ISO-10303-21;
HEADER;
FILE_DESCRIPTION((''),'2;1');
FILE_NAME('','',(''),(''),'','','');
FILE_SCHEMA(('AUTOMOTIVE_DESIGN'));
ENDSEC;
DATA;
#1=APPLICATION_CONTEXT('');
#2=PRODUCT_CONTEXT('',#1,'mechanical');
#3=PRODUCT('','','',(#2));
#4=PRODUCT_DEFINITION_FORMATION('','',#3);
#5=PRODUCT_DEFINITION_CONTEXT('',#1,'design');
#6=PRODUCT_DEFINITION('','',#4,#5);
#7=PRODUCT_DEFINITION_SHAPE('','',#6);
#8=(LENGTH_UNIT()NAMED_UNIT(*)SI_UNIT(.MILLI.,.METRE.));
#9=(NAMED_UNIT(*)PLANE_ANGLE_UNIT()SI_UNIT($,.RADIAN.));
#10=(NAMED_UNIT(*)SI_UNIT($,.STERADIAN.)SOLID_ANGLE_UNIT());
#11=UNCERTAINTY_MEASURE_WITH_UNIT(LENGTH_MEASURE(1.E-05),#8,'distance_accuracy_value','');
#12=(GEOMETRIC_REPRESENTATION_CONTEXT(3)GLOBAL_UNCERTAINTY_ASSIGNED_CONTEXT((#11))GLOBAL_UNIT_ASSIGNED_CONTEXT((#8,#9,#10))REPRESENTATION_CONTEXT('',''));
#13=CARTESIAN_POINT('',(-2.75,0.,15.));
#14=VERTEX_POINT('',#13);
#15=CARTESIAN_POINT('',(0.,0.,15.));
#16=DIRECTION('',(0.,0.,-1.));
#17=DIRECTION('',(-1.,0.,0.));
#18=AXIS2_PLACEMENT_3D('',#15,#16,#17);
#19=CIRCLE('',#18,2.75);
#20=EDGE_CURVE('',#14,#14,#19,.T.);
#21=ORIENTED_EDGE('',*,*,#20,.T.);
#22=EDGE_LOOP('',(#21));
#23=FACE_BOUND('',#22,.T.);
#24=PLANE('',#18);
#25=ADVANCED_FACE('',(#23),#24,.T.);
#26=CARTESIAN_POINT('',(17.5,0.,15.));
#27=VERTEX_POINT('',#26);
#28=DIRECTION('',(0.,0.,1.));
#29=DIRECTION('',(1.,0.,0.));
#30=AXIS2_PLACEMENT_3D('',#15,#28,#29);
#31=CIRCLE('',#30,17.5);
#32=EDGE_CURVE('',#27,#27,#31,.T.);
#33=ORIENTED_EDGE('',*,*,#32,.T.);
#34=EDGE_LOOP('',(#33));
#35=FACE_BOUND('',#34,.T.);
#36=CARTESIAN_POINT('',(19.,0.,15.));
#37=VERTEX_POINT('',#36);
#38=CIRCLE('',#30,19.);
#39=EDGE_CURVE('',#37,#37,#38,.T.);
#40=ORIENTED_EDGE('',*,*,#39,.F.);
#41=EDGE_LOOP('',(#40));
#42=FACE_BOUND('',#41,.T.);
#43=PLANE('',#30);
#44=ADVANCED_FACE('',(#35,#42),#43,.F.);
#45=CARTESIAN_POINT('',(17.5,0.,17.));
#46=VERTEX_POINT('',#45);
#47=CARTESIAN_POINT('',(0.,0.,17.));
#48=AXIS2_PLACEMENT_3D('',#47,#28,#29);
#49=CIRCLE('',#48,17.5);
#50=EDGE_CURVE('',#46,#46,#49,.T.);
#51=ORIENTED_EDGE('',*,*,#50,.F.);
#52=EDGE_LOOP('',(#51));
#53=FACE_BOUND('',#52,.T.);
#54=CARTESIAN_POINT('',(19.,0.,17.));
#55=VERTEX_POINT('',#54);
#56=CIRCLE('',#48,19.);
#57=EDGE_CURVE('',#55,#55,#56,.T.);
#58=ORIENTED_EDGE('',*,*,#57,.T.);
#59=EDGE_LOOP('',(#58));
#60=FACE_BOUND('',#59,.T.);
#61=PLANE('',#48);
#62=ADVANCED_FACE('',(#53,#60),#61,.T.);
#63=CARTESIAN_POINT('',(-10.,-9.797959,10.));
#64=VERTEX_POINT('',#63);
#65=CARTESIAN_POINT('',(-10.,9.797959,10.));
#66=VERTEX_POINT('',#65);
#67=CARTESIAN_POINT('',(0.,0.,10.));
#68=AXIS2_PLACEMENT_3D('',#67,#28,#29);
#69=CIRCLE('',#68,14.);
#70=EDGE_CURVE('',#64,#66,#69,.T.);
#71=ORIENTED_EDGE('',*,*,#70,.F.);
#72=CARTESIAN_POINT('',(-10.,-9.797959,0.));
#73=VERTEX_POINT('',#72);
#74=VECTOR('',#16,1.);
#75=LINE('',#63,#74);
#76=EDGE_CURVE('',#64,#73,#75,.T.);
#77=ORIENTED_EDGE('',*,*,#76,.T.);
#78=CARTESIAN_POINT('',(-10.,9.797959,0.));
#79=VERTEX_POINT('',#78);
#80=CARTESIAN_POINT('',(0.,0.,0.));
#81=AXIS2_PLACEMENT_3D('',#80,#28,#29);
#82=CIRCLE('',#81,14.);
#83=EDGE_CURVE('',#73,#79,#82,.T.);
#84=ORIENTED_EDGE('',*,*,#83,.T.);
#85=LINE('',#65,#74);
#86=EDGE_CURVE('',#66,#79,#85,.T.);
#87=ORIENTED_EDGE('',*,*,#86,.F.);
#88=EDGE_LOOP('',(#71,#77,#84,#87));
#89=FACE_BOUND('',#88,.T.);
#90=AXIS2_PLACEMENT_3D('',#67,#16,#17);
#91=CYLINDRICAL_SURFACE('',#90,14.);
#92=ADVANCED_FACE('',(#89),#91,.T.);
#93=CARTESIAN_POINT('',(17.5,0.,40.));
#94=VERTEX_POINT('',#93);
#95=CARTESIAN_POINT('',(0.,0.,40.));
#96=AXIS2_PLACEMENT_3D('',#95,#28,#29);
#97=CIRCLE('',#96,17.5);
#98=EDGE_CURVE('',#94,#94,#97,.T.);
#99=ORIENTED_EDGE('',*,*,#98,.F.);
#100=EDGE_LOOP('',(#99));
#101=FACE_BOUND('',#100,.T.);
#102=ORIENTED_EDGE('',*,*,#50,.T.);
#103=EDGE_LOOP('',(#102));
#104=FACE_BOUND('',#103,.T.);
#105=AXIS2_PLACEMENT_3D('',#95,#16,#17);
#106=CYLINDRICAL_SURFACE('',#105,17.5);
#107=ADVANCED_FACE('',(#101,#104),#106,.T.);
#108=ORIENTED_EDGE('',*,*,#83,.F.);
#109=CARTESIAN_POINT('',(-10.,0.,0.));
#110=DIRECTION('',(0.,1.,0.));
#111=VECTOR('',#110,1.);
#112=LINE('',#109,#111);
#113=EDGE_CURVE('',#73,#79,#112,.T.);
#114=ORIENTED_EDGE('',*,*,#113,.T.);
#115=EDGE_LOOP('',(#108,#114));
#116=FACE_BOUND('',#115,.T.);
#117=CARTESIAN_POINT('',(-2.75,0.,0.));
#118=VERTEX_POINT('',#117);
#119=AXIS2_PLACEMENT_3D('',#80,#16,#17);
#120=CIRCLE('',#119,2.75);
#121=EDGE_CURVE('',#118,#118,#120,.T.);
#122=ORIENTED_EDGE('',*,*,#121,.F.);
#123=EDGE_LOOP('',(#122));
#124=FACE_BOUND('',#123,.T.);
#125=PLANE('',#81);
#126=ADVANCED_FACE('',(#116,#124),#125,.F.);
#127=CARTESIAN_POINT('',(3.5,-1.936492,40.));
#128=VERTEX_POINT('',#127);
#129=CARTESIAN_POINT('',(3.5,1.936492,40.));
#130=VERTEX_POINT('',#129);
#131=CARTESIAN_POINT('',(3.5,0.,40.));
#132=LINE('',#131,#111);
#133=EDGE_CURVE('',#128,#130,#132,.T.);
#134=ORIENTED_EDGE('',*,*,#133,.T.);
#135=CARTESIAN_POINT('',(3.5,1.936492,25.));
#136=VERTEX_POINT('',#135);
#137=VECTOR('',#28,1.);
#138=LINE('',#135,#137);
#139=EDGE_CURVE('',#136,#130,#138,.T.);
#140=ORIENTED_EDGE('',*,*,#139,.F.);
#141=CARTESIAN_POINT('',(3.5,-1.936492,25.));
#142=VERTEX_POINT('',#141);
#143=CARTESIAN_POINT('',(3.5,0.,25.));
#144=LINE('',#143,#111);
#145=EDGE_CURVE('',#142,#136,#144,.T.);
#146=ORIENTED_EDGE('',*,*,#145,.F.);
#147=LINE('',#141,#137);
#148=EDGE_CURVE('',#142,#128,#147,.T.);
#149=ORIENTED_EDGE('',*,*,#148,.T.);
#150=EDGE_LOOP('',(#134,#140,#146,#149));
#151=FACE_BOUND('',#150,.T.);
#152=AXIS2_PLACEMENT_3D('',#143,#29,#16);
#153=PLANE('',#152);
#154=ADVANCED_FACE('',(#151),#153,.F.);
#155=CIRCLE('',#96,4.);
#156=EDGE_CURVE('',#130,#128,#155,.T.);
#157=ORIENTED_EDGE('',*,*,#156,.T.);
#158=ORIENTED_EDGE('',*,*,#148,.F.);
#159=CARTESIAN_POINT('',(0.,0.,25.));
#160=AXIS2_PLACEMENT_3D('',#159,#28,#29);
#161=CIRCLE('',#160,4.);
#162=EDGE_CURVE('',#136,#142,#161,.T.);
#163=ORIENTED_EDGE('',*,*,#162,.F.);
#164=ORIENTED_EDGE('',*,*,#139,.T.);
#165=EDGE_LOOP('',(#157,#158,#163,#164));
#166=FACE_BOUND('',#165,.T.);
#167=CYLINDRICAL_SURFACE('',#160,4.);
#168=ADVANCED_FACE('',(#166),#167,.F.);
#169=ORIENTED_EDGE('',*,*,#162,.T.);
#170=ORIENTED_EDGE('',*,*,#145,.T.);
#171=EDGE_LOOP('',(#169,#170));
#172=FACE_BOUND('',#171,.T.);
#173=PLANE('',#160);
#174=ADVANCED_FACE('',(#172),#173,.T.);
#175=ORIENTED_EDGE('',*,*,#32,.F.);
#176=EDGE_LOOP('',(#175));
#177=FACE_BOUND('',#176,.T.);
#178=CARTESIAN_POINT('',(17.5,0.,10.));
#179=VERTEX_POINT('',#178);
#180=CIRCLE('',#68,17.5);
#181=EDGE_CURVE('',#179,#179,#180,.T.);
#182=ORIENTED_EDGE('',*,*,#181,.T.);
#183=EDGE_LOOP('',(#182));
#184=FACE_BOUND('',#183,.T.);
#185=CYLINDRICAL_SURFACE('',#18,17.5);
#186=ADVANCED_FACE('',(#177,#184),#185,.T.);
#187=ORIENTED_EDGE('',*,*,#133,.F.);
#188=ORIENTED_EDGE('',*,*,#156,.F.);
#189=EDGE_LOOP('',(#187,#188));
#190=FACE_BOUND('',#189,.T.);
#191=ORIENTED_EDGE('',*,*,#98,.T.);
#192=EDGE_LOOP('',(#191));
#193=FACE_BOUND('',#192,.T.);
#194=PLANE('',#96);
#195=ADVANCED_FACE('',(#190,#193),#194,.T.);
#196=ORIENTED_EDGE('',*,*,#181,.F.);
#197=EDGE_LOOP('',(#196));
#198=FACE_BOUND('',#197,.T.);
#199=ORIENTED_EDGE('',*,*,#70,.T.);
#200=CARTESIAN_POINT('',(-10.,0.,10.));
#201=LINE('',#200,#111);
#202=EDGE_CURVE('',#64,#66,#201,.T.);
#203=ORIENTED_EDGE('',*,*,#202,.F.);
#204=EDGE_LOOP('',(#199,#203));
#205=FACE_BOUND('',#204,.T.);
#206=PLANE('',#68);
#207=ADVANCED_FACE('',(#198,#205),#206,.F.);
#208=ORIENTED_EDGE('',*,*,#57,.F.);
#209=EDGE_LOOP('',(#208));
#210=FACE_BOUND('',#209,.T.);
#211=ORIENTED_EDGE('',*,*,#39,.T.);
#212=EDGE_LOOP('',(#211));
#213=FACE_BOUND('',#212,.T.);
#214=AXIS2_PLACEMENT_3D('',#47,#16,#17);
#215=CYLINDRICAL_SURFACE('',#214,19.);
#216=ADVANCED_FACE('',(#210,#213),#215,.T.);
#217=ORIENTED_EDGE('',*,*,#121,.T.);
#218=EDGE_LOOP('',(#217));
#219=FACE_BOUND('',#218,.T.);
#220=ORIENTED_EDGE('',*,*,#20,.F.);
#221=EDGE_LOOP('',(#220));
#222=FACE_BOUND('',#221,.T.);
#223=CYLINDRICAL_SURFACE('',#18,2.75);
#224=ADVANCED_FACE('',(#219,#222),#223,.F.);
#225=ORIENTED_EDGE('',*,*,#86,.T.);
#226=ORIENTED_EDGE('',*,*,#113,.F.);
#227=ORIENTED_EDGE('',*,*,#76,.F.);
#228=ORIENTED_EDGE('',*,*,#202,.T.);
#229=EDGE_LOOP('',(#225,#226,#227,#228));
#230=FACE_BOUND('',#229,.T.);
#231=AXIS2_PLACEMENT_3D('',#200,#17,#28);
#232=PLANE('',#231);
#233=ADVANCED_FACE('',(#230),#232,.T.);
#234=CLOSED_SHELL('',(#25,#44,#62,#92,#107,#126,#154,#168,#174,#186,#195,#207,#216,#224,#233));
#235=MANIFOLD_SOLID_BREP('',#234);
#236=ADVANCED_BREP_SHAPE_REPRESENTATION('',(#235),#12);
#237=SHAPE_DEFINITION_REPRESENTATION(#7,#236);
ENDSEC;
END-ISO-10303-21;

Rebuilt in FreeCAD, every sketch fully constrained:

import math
import FreeCAD as App
import Part
import Sketcher

V = App.Vector

doc = App.newDocument("Part")
params = doc.addObject("Spreadsheet::Sheet", "Params")
for row, (alias, value) in enumerate([
    ("sketch1_diameter", "28 mm"),
    ("pad1_length", "10 mm"),
    ("sketch2_diameter", "35 mm"),
    ("pad2_length", "5 mm"),
    ("sketch3_diameter", "38 mm"),
    ("pad3_length", "2 mm"),
    ("sketch4_diameter", "35 mm"),
    ("pad4_length", "23 mm"),
    ("sketch5_radius", "14 mm"),
    ("pocket1_length", "10 mm"),
    ("sketch6_diameter", "5.5 mm"),
    ("pocket2_length", "15 mm"),
    ("sketch7_radius", "4 mm"),
    ("pocket3_length", "15 mm"),
], start=1):
    params.set(f"A{row}", alias)
    params.set(f"B{row}", "=" + value)
    params.setAlias(f"B{row}", alias)

body = doc.addObject("PartDesign::Body", "Body")

sketch1 = body.newObject("Sketcher::SketchObject", "Sketch")
sketch1.AttachmentSupport = (doc.getObject("XY_Plane"), [""])
sketch1.MapMode = "FlatFace"
sketch1.addGeometry(Part.Circle(V(0, 0, 0), V(0, 0, 1), 14), False)
sketch1.addConstraint([
    Sketcher.Constraint("Coincident", 0, 3, -1, 1),
    Sketcher.Constraint("Diameter", 0, 28.0),
])
sketch1.setExpression("Constraints[1]", "Params.sketch1_diameter")
pad1 = body.newObject("PartDesign::Pad", "Pad")
pad1.Profile = sketch1
pad1.setExpression("Length", "Params.pad1_length")

sketch2 = body.newObject("Sketcher::SketchObject", "Sketch001")
sketch2.AttachmentSupport = (doc.getObject("XY_Plane"), [""])
sketch2.MapMode = "FlatFace"
sketch2.AttachmentOffset = App.Placement(V(0, 0, 10), App.Rotation())
sketch2.addGeometry(Part.Circle(V(0, 0, 0), V(0, 0, 1), 17.5), False)
sketch2.addConstraint([
    Sketcher.Constraint("Coincident", 0, 3, -1, 1),
    Sketcher.Constraint("Diameter", 0, 35.0),
])
sketch2.setExpression("Constraints[1]", "Params.sketch2_diameter")
pad2 = body.newObject("PartDesign::Pad", "Pad001")
pad2.Profile = sketch2
pad2.setExpression("Length", "Params.pad2_length")

sketch3 = body.newObject("Sketcher::SketchObject", "Sketch002")
sketch3.AttachmentSupport = (doc.getObject("XY_Plane"), [""])
sketch3.MapMode = "FlatFace"
sketch3.AttachmentOffset = App.Placement(V(0, 0, 15), App.Rotation())
sketch3.addGeometry(Part.Circle(V(0, 0, 0), V(0, 0, 1), 19), False)
sketch3.addConstraint([
    Sketcher.Constraint("Coincident", 0, 3, -1, 1),
    Sketcher.Constraint("Diameter", 0, 38.0),
])
sketch3.setExpression("Constraints[1]", "Params.sketch3_diameter")
pad3 = body.newObject("PartDesign::Pad", "Pad002")
pad3.Profile = sketch3
pad3.setExpression("Length", "Params.pad3_length")

sketch4 = body.newObject("Sketcher::SketchObject", "Sketch003")
sketch4.AttachmentSupport = (doc.getObject("XY_Plane"), [""])
sketch4.MapMode = "FlatFace"
sketch4.AttachmentOffset = App.Placement(V(0, 0, 17), App.Rotation())
sketch4.addGeometry(Part.Circle(V(0, 0, 0), V(0, 0, 1), 17.5), False)
sketch4.addConstraint([
    Sketcher.Constraint("Coincident", 0, 3, -1, 1),
    Sketcher.Constraint("Diameter", 0, 35.0),
])
sketch4.setExpression("Constraints[1]", "Params.sketch4_diameter")
pad4 = body.newObject("PartDesign::Pad", "Pad003")
pad4.Profile = sketch4
pad4.setExpression("Length", "Params.pad4_length")

sketch5 = body.newObject("Sketcher::SketchObject", "Sketch004")
sketch5.AttachmentSupport = (doc.getObject("XY_Plane"), [""])
sketch5.MapMode = "FlatFace"
sketch5.addGeometry([
    Part.ArcOfCircle(Part.Circle(V(0, 0, 0), V(0, 0, 1), 14), math.radians(135.584691), math.radians(224.415309)),
    Part.LineSegment(V(-10, 9.797959, 0), V(-10, -9.797959, 0)),
], False)
sketch5.addConstraint([
    Sketcher.Constraint("Coincident", 0, 1, 1, 1),
    Sketcher.Constraint("Coincident", 1, 2, 0, 2),
    Sketcher.Constraint("Vertical", 1),
    Sketcher.Constraint("Coincident", 0, 3, -1, 1),
    Sketcher.Constraint("Radius", 0, 14.0),
    Sketcher.Constraint("DistanceX", 0, 1, -1, 1, 10.0),
])
sketch5.setExpression("Constraints[4]", "Params.sketch5_radius")
pocket1 = body.newObject("PartDesign::Pocket", "Pocket")
pocket1.Profile = sketch5
pocket1.setExpression("Length", "Params.pocket1_length")
pocket1.Reversed = True

sketch6 = body.newObject("Sketcher::SketchObject", "Sketch005")
sketch6.AttachmentSupport = (doc.getObject("XY_Plane"), [""])
sketch6.MapMode = "FlatFace"
sketch6.addGeometry(Part.Circle(V(0, 0, 0), V(0, 0, 1), 2.75), False)
sketch6.addConstraint([
    Sketcher.Constraint("Coincident", 0, 3, -1, 1),
    Sketcher.Constraint("Diameter", 0, 5.5),
])
sketch6.setExpression("Constraints[1]", "Params.sketch6_diameter")
pocket2 = body.newObject("PartDesign::Pocket", "Pocket001")
pocket2.Profile = sketch6
pocket2.setExpression("Length", "Params.pocket2_length")
pocket2.Reversed = True

sketch7 = body.newObject("Sketcher::SketchObject", "Sketch006")
sketch7.AttachmentSupport = (doc.getObject("XY_Plane"), [""])
sketch7.MapMode = "FlatFace"
sketch7.AttachmentOffset = App.Placement(V(0, 0, 40), App.Rotation())
sketch7.addGeometry([
    Part.ArcOfCircle(Part.Circle(V(0, 0, 0), V(0, 0, 1), 4), math.radians(28.955024), math.radians(331.044976)),
    Part.LineSegment(V(3.5, -1.936492, 0), V(3.5, 1.936492, 0)),
], False)
sketch7.addConstraint([
    Sketcher.Constraint("Coincident", 0, 1, 1, 2),
    Sketcher.Constraint("Coincident", 1, 1, 0, 2),
    Sketcher.Constraint("Vertical", 1),
    Sketcher.Constraint("Coincident", 0, 3, -1, 1),
    Sketcher.Constraint("Radius", 0, 4.0),
    Sketcher.Constraint("DistanceX", -1, 1, 0, 1, 3.5),
])
sketch7.setExpression("Constraints[4]", "Params.sketch7_radius")
pocket3 = body.newObject("PartDesign::Pocket", "Pocket002")
pocket3.Profile = sketch7
pocket3.setExpression("Length", "Params.pocket3_length")

doc.recompute()
